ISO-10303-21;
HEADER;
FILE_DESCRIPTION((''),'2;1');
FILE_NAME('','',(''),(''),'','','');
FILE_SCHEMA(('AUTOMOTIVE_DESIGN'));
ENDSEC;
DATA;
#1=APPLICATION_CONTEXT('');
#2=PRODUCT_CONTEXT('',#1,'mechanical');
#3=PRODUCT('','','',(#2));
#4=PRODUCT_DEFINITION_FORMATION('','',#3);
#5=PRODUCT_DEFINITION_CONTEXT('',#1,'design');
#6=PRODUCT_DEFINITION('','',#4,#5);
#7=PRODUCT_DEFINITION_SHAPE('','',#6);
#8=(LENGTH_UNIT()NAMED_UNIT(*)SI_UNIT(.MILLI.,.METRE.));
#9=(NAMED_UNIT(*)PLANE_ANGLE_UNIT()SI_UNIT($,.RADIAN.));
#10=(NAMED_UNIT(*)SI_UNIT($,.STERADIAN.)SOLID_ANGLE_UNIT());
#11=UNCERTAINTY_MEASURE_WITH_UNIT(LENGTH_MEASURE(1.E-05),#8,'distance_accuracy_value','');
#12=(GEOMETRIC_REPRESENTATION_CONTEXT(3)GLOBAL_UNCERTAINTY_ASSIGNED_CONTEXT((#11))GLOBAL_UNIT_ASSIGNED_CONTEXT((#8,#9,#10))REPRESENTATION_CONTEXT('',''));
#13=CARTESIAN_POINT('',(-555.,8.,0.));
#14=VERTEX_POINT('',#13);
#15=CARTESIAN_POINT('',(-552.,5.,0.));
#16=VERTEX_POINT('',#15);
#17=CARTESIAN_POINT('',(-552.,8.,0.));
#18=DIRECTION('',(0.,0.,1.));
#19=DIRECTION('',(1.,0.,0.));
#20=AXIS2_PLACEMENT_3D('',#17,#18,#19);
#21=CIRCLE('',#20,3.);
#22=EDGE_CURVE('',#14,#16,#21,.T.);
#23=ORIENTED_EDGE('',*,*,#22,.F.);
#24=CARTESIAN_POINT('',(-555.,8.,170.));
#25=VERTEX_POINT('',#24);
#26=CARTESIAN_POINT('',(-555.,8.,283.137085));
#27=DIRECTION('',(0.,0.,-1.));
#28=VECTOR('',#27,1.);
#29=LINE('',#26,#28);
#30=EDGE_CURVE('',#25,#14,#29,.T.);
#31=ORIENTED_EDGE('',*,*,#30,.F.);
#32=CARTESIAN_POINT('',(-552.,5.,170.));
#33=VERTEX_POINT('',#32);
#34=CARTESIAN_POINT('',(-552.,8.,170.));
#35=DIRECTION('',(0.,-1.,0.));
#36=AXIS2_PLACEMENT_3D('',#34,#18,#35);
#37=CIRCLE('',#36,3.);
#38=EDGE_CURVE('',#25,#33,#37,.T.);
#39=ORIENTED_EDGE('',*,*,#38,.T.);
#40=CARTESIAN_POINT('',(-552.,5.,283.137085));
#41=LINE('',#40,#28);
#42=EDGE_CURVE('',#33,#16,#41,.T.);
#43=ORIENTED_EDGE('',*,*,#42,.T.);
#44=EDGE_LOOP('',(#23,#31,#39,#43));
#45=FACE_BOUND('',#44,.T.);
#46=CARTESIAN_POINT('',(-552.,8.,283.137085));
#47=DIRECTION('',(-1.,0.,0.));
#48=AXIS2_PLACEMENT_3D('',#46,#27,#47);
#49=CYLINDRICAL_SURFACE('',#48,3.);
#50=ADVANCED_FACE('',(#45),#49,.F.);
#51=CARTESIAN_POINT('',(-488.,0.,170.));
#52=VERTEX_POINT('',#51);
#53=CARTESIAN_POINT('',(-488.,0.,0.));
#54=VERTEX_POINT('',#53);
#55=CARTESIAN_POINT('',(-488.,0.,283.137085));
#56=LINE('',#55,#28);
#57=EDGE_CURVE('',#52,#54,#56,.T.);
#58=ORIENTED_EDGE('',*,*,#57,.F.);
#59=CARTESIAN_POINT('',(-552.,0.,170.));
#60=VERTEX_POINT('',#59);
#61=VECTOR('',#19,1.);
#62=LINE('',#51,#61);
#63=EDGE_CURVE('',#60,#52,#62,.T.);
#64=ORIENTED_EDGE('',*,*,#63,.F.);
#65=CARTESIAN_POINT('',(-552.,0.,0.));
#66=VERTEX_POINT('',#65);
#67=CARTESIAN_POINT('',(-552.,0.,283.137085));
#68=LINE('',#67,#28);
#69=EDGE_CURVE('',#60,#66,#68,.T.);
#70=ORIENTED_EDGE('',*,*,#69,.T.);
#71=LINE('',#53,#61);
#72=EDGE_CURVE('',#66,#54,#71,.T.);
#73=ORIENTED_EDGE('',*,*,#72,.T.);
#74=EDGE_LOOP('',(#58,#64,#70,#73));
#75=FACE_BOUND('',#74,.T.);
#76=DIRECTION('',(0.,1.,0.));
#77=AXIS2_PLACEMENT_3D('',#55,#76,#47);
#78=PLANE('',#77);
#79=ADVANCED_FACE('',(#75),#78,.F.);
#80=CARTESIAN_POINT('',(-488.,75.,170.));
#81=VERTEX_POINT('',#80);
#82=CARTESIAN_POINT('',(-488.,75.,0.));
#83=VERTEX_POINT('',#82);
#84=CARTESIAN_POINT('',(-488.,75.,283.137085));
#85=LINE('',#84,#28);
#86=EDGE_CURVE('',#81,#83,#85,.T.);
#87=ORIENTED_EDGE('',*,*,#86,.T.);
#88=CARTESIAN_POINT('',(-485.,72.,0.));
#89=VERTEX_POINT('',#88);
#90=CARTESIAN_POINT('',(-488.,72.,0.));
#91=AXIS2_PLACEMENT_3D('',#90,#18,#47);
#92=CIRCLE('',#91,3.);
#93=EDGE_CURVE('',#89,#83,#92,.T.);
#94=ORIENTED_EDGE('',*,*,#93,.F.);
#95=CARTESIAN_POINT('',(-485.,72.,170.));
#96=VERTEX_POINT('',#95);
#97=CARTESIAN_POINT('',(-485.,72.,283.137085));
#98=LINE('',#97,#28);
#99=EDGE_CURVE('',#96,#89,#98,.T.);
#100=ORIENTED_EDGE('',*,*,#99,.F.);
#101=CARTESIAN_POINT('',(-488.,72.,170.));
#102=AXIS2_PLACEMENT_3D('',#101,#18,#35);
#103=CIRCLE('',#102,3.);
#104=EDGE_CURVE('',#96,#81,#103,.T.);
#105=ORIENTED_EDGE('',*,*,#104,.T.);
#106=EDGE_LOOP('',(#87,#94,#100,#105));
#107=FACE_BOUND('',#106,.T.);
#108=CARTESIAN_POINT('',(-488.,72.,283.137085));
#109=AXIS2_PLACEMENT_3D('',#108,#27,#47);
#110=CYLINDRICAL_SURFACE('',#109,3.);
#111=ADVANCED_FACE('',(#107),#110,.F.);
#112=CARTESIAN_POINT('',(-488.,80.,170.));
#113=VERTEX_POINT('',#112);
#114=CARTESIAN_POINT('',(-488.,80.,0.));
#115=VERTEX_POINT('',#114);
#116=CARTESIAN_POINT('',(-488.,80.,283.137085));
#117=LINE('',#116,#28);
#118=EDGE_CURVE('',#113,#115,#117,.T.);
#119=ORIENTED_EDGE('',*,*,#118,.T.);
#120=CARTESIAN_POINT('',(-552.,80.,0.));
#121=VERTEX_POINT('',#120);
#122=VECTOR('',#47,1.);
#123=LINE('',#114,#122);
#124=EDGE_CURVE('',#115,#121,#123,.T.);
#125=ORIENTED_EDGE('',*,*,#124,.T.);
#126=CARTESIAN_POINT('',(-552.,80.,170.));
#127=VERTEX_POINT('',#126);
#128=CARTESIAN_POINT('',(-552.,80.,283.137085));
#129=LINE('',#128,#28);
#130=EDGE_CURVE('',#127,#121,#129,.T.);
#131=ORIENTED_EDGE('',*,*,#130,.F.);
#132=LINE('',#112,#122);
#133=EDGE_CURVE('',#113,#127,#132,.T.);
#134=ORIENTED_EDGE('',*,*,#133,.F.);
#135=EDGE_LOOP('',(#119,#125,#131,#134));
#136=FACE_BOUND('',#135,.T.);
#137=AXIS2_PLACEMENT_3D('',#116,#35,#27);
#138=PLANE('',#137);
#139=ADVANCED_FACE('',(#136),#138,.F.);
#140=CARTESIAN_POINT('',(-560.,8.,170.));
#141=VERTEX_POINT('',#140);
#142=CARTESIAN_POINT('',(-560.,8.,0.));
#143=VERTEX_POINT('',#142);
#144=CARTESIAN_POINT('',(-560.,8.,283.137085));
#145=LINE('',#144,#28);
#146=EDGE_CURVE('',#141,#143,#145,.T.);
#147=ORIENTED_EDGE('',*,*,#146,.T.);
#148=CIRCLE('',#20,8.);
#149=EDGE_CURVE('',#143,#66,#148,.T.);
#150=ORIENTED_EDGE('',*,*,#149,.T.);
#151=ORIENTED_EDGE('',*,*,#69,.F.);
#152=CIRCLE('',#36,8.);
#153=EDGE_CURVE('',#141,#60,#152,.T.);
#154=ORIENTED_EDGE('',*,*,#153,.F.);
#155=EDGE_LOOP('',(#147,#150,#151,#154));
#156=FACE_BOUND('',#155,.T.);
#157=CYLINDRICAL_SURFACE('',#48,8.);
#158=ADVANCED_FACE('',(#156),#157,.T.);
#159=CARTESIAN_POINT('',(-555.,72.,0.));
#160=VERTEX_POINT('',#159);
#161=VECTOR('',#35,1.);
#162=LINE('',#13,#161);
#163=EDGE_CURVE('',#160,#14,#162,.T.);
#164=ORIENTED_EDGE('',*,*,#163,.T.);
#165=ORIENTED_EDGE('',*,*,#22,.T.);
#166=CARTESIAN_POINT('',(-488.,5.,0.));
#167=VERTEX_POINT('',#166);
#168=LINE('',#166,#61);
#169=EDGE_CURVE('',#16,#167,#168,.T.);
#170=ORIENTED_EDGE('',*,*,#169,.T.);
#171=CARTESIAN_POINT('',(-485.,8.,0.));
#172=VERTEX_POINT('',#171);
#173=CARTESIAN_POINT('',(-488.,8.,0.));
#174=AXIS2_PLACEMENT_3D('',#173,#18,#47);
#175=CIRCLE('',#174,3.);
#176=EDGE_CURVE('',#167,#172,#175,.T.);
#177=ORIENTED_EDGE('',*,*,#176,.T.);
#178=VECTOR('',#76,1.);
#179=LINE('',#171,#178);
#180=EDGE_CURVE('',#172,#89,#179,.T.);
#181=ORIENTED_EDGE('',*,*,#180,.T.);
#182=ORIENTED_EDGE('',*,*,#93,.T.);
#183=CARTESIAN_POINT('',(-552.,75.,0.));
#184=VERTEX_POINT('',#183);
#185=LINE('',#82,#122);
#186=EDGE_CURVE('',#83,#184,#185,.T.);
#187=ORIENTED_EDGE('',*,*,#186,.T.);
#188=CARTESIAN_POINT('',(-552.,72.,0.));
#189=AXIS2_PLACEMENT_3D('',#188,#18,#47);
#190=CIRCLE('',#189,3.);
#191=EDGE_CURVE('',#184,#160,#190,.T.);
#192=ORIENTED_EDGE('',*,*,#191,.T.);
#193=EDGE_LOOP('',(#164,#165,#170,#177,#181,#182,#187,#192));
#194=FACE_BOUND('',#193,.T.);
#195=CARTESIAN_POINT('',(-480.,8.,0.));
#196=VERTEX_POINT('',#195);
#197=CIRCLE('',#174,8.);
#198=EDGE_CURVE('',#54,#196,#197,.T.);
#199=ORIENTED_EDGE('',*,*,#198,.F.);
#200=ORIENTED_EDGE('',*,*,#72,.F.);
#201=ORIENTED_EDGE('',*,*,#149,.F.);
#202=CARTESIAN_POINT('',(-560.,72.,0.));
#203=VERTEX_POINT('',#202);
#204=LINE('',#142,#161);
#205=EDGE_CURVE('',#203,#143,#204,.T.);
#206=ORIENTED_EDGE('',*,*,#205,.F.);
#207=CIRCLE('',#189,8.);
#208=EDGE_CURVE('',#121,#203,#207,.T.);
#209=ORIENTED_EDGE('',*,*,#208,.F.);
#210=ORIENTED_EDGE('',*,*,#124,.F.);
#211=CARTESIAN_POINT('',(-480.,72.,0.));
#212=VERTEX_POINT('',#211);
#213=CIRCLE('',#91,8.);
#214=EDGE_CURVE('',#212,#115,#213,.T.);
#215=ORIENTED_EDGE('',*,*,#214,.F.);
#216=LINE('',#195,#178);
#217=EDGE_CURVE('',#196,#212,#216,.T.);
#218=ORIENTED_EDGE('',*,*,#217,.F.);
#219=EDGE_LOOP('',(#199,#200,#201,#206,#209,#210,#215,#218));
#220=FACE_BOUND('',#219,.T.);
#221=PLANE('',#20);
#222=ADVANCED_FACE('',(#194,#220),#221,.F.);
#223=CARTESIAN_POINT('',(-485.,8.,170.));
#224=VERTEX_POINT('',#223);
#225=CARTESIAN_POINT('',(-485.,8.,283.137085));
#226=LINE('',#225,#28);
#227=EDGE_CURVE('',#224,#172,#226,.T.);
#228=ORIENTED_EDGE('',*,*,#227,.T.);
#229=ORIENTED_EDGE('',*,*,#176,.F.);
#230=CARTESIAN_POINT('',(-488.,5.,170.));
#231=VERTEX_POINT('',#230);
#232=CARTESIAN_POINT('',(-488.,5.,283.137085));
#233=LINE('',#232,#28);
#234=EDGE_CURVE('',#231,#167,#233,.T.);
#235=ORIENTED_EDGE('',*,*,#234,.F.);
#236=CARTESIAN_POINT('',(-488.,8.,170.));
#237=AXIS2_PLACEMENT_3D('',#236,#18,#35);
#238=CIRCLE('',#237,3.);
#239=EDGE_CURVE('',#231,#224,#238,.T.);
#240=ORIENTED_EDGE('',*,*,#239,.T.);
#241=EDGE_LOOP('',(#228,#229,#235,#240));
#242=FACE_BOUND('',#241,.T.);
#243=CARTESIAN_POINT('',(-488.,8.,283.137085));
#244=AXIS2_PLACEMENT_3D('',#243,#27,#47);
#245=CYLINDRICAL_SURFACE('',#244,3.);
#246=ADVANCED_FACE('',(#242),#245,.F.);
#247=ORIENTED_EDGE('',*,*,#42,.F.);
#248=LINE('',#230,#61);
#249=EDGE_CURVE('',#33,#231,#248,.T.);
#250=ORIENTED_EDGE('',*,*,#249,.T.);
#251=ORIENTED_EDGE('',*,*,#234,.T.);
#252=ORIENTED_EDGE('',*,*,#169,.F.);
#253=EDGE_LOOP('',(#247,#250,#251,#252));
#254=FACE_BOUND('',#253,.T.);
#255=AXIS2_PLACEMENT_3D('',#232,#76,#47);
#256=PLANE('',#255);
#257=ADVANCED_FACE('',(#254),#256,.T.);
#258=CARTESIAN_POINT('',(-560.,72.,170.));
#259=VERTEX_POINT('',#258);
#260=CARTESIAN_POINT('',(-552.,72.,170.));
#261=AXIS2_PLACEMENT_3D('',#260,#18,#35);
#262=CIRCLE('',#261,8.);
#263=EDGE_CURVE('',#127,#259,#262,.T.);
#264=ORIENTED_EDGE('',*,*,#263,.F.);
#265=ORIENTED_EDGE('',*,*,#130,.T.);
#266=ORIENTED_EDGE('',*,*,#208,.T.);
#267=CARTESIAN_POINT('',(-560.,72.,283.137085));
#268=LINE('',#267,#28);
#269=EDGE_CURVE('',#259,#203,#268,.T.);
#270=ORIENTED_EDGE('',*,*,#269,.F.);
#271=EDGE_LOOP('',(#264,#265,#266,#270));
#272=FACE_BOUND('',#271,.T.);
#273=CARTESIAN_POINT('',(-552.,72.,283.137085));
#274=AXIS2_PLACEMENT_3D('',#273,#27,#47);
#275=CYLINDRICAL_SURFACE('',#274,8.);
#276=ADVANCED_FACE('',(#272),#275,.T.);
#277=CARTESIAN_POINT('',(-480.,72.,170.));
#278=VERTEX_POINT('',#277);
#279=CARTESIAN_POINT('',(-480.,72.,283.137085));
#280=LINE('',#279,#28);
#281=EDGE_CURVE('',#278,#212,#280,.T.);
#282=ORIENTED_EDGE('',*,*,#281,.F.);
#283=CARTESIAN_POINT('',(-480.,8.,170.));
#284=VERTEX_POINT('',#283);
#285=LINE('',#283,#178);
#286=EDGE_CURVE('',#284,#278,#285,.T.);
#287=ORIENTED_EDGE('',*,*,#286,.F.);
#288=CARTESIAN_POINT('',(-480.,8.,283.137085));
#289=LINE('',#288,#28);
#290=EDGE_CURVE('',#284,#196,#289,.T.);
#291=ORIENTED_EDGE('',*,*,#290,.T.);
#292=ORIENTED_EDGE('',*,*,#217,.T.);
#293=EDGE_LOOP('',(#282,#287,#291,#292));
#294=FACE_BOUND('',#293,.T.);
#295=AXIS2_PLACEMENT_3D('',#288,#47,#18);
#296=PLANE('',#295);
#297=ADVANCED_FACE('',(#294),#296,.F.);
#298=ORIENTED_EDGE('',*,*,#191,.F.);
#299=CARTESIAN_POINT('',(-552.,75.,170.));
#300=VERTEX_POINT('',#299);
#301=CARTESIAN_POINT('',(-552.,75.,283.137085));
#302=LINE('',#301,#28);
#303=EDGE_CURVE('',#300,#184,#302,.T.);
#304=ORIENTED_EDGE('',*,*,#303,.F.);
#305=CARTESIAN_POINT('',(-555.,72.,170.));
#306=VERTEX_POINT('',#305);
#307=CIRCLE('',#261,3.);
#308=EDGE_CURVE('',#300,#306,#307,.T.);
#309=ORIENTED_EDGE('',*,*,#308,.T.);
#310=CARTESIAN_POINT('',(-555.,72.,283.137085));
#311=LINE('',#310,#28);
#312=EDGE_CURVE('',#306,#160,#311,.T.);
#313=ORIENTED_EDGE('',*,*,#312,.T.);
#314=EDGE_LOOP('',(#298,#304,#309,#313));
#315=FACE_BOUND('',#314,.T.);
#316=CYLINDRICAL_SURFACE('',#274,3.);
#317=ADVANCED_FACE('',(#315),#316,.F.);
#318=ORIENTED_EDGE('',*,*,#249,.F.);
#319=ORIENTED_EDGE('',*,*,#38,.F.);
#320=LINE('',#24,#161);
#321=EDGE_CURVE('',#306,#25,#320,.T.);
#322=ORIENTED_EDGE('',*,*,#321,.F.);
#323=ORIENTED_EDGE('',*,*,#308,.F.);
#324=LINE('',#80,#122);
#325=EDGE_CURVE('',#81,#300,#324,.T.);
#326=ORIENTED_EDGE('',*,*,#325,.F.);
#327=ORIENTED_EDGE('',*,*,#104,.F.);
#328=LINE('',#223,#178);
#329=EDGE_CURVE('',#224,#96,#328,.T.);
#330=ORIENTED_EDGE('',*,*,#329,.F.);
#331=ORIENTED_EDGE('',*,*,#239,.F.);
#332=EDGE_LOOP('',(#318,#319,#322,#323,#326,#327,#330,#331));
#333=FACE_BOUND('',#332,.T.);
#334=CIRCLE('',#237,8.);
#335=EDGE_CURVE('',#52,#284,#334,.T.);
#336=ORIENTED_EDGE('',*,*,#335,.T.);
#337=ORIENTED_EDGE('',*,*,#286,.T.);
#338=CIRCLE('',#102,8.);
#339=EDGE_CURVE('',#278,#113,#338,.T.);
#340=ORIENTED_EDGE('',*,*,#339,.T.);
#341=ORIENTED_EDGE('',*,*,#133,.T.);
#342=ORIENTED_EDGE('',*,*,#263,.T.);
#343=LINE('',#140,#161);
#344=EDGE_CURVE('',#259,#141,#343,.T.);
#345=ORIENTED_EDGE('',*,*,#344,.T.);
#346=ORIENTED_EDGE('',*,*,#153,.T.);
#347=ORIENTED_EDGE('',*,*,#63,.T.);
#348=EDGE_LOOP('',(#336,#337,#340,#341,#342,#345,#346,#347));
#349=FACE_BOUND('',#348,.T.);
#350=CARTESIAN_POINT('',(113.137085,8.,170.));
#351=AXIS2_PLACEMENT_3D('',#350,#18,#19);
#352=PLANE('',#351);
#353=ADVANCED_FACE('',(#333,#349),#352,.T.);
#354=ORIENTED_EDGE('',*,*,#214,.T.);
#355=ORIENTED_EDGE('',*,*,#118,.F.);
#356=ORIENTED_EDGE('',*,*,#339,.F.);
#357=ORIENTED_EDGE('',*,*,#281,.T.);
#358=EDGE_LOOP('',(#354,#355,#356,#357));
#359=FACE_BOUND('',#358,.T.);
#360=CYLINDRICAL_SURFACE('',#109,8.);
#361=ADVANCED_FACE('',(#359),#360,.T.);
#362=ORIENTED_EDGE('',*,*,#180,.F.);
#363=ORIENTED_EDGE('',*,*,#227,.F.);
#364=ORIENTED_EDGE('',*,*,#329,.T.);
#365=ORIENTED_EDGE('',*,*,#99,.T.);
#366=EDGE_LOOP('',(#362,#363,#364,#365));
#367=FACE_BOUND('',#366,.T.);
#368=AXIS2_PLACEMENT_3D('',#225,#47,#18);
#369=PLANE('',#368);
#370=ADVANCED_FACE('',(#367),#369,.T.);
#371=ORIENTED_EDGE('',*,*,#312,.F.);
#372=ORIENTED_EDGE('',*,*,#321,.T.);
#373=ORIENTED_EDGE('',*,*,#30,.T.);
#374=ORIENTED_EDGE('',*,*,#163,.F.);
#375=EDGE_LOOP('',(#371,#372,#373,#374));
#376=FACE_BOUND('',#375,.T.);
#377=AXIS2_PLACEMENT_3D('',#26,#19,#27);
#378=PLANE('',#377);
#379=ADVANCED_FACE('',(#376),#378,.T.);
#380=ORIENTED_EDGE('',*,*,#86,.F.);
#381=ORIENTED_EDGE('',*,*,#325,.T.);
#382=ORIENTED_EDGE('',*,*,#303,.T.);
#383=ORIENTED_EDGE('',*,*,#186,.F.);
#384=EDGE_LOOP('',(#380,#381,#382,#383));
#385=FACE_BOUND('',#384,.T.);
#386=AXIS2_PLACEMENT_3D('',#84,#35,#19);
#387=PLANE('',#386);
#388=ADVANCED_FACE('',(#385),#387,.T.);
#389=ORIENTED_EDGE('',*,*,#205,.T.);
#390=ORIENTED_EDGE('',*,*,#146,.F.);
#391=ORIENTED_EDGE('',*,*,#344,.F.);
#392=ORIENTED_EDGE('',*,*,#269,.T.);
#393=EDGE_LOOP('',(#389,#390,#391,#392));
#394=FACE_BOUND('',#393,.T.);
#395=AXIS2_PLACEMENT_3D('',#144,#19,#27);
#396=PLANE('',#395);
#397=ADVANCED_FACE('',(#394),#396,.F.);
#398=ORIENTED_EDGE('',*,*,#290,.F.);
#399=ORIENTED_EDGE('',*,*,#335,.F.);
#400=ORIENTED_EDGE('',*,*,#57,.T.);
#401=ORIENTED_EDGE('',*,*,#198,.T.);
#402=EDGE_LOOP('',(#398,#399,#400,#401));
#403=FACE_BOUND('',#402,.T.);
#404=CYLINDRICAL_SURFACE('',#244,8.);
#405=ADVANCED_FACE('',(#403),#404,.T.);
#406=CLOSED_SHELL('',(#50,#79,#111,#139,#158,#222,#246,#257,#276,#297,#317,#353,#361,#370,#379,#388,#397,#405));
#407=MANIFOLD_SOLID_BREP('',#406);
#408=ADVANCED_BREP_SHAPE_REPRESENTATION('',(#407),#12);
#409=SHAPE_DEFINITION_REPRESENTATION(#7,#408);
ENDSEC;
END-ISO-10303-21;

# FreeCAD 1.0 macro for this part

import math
import FreeCAD as App
import Part
import Sketcher

V = App.Vector

doc = App.newDocument("Part")
body = doc.addObject("PartDesign::Body", "Body")

# Sketch on XY plane
sketch1 = body.newObject("Sketcher::SketchObject", "Sketch")
sketch1.AttachmentSupport = (doc.getObject("XY_Plane"), [""])
sketch1.MapMode = "FlatFace"
sketch1.addGeometry([
    Part.LineSegment(V(-552, 0, 0), V(-488, 0, 0)),  # 0
    Part.ArcOfCircle(Part.Circle(V(-488, 8, 0), V(0, 0, 1), 8), math.radians(-90), math.radians(0)),  # 1
    Part.LineSegment(V(-480, 8, 0), V(-480, 72, 0)),  # 2
    Part.ArcOfCircle(Part.Circle(V(-488, 72, 0), V(0, 0, 1), 8), math.radians(0), math.radians(90)),  # 3
    Part.LineSegment(V(-488, 80, 0), V(-552, 80, 0)),  # 4
    Part.ArcOfCircle(Part.Circle(V(-552, 72, 0), V(0, 0, 1), 8), math.radians(90), math.radians(180)),  # 5
    Part.LineSegment(V(-560, 72, 0), V(-560, 8, 0)),  # 6
    Part.ArcOfCircle(Part.Circle(V(-552, 8, 0), V(0, 0, 1), 8), math.radians(-180), math.radians(-90)),  # 7
    Part.LineSegment(V(-488, 5, 0), V(-552, 5, 0)),  # 8
    Part.ArcOfCircle(Part.Circle(V(-552, 8, 0), V(0, 0, 1), 3), math.radians(180), math.radians(270)),  # 9
    Part.LineSegment(V(-555, 8, 0), V(-555, 72, 0)),  # 10
    Part.ArcOfCircle(Part.Circle(V(-552, 72, 0), V(0, 0, 1), 3), math.radians(90), math.radians(180)),  # 11
    Part.LineSegment(V(-552, 75, 0), V(-488, 75, 0)),  # 12
    Part.ArcOfCircle(Part.Circle(V(-488, 72, 0), V(0, 0, 1), 3), math.radians(0), math.radians(90)),  # 13
    Part.LineSegment(V(-485, 72, 0), V(-485, 8, 0)),  # 14
    Part.ArcOfCircle(Part.Circle(V(-488, 8, 0), V(0, 0, 1), 3), math.radians(-90), math.radians(0)),  # 15
], False)
sketch1.addConstraint([
    Sketcher.Constraint("Tangent", 0, 2, 1, 1),
    Sketcher.Constraint("Tangent", 1, 2, 2, 1),
    Sketcher.Constraint("Tangent", 2, 2, 3, 1),
    Sketcher.Constraint("Tangent", 3, 2, 4, 1),
    Sketcher.Constraint("Tangent", 4, 2, 5, 1),
    Sketcher.Constraint("Tangent", 5, 2, 6, 1),
    Sketcher.Constraint("Tangent", 6, 2, 7, 1),
    Sketcher.Constraint("Tangent", 7, 2, 0, 1),
    Sketcher.Constraint("Tangent", 8, 2, 9, 2),
    Sketcher.Constraint("Tangent", 9, 1, 10, 1),
    Sketcher.Constraint("Tangent", 10, 2, 11, 2),
    Sketcher.Constraint("Tangent", 11, 1, 12, 1),
    Sketcher.Constraint("Tangent", 12, 2, 13, 2),
    Sketcher.Constraint("Tangent", 13, 1, 14, 1),
    Sketcher.Constraint("Tangent", 14, 2, 15, 2),
    Sketcher.Constraint("Tangent", 15, 1, 8, 1),
    Sketcher.Constraint("Horizontal", 0),
    Sketcher.Constraint("Vertical", 2),
    Sketcher.Constraint("Horizontal", 4),
    Sketcher.Constraint("Vertical", 6),
    Sketcher.Constraint("Horizontal", 8),
    Sketcher.Constraint("Vertical", 10),
    Sketcher.Constraint("Horizontal", 12),
    Sketcher.Constraint("Vertical", 14),
    Sketcher.Constraint("Coincident", 9, 3, 7, 3),
    Sketcher.Constraint("Coincident", 11, 3, 5, 3),
    Sketcher.Constraint("Coincident", 13, 3, 3, 3),
    Sketcher.Constraint("Equal", 1, 3),
    Sketcher.Constraint("Equal", 3, 5),
    Sketcher.Constraint("Equal", 5, 7),
    Sketcher.Constraint("Equal", 13, 15),
    Sketcher.Constraint("PointOnObject", 0, 2, -1),
    Sketcher.Constraint("Equal", 12, 2),
    Sketcher.Constraint("Radius", 1, 8.0),
    Sketcher.Constraint("Radius", 9, 3.0),
    Sketcher.Constraint("DistanceX", 0, 1, 0, 2, 64.0),
    Sketcher.Constraint("DistanceX", 1, 3, -1, 1, 488.0),
])
pad1 = body.newObject("PartDesign::Pad", "Pad")
pad1.Profile = sketch1
pad1.Length = 170

doc.recompute()
